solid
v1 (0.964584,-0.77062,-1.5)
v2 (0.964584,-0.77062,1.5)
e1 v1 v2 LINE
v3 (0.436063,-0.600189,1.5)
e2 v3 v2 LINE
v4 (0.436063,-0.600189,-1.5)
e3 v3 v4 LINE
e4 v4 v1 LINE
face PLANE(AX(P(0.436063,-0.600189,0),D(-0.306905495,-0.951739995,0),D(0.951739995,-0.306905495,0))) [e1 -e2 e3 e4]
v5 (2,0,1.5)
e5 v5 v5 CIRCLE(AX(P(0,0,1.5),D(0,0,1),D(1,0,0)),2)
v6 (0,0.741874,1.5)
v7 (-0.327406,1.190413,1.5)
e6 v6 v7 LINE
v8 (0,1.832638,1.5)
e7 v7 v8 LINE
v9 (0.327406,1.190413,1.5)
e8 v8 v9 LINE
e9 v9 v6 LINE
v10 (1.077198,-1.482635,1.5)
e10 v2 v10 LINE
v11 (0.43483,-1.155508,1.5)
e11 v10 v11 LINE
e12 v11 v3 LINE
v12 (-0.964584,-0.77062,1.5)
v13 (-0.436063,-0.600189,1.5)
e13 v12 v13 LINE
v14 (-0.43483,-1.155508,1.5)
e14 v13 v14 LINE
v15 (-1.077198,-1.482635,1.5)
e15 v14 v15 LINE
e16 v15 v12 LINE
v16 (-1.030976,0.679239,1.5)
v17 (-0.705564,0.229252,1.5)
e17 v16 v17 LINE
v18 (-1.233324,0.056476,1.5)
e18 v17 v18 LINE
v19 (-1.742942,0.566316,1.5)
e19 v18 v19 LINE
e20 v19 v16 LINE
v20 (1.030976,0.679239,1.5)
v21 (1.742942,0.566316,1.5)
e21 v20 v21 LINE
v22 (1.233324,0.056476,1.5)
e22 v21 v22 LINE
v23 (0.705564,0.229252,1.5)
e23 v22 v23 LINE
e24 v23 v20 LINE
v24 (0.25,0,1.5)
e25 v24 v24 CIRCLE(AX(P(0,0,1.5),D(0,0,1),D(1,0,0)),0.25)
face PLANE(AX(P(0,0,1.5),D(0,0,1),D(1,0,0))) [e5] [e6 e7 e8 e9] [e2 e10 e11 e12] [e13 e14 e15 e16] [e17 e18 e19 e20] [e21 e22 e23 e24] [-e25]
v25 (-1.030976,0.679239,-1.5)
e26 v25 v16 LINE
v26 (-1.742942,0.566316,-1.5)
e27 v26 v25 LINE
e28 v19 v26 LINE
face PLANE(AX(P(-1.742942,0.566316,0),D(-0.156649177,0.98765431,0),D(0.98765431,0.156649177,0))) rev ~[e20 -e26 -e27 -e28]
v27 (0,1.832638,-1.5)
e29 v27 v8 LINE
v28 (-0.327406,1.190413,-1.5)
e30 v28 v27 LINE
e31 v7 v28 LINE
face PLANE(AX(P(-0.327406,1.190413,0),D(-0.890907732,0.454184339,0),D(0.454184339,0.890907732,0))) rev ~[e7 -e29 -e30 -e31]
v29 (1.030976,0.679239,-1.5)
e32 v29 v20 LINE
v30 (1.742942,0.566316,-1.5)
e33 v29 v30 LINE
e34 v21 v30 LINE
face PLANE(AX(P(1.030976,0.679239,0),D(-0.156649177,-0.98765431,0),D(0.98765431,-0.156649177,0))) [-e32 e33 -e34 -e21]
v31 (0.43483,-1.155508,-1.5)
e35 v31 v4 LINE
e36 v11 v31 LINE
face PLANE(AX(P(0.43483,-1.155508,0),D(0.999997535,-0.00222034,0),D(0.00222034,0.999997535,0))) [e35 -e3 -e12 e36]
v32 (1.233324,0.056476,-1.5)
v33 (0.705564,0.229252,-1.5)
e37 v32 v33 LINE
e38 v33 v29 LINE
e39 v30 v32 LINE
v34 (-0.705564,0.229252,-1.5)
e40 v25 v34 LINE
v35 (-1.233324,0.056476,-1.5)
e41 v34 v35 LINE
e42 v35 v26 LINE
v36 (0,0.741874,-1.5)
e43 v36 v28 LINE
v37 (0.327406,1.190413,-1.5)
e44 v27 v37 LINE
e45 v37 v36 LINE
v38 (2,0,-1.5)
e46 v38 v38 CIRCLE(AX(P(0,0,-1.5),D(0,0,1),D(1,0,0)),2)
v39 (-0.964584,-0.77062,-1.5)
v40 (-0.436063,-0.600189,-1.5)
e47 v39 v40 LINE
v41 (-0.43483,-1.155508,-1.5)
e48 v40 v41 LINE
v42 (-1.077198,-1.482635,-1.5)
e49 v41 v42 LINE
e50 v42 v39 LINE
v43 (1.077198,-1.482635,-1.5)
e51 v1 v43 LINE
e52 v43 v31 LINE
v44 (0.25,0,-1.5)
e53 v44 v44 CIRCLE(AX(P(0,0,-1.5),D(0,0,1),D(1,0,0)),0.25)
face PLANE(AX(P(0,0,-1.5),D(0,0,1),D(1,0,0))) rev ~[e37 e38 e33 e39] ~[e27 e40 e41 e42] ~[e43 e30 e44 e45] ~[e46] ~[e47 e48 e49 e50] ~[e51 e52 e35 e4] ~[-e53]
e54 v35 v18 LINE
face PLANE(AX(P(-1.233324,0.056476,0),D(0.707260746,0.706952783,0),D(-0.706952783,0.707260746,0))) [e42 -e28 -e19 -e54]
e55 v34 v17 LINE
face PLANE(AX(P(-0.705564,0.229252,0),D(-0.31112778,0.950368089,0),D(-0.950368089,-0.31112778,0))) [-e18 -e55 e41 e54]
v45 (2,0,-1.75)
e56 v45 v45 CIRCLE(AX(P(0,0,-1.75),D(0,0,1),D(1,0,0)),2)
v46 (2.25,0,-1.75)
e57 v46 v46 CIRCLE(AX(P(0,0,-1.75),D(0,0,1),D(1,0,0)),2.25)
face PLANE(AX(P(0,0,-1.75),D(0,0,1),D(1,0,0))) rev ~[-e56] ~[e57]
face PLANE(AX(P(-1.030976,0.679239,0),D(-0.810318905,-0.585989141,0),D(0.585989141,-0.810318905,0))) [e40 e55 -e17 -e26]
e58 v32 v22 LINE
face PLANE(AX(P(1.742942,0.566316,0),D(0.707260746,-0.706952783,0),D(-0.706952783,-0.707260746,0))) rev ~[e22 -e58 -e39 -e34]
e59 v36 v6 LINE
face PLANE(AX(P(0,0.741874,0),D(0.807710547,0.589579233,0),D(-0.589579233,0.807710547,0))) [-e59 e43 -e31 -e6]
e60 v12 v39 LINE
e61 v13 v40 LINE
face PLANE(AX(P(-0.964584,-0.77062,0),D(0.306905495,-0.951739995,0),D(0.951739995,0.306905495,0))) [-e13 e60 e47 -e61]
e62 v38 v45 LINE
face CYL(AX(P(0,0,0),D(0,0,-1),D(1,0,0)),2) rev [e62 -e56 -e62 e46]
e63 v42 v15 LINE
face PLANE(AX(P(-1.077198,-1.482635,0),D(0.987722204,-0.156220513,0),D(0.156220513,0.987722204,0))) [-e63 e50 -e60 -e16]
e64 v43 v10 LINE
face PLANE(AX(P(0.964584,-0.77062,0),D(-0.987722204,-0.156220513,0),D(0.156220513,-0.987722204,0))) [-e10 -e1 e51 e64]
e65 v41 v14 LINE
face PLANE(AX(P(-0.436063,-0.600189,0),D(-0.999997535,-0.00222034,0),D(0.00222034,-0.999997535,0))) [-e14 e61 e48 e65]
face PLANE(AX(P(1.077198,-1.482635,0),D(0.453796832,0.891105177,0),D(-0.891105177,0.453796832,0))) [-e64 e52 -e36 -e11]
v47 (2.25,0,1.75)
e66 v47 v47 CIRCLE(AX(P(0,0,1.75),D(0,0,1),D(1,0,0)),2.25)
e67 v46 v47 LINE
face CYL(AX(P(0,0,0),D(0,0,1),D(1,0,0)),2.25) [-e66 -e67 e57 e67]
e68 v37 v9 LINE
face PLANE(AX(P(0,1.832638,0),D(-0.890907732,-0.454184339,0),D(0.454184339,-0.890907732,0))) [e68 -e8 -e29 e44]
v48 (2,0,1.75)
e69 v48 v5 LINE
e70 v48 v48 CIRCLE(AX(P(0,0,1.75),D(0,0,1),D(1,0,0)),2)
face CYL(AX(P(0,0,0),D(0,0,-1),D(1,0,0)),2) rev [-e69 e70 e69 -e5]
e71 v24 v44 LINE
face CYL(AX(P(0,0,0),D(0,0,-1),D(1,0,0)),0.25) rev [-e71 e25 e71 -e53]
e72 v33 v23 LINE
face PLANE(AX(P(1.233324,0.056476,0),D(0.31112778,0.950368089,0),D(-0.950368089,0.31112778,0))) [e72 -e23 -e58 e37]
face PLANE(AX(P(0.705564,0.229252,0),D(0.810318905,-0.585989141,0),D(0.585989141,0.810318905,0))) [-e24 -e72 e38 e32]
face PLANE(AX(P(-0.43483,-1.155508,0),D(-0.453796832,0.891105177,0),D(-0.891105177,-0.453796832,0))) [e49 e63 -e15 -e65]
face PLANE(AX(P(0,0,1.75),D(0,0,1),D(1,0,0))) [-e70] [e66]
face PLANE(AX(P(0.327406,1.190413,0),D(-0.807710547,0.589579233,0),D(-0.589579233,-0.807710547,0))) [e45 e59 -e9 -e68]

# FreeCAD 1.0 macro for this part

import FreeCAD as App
import Part
import Sketcher

doc = App.newDocument("Part")
params = doc.addObject("Spreadsheet::Sheet", "Params")
for row, (alias, value) in enumerate([
    ("sketch1_diameter", "4 mm"),
    ("sketch1_diameter2", "0.5 mm"),
    ("pad1_length", "3 mm"),
    ("sketch2_diameter", "4 mm"),
    ("sketch2_diameter2", "4.5 mm"),
    ("pad2_length", "3.5 mm"),
], start=1):
    params.set(f"A{row}", alias)
    params.set(f"B{row}", "=" + value)
    params.setAlias(f"B{row}", alias)

body = doc.addObject("PartDesign::Body", "Body")

sketch1 = doc.addObject("Sketcher::SketchObject", "Sketch")
body.addObject(sketch1)
sketch1.AttachmentSupport = (doc.XY_Plane, [""])
sketch1.MapMode = "FlatFace"
sketch1.addGeometry([
    Part.Circle(App.Vector(0, 0, 0), App.Vector(0, 0, 1), 2),
    Part.LineSegment(App.Vector(-0.44, -0.6, 0), App.Vector(-0.43, -1.16, 0)),
    Part.LineSegment(App.Vector(-0.43, -1.16, 0), App.Vector(-1.08, -1.48, 0)),
    Part.LineSegment(App.Vector(-1.08, -1.48, 0), App.Vector(-0.96, -0.77, 0)),
    Part.LineSegment(App.Vector(-0.96, -0.77, 0), App.Vector(-0.44, -0.6, 0)),
    Part.LineSegment(App.Vector(0.44, -0.6, 0), App.Vector(0.96, -0.77, 0)),
    Part.LineSegment(App.Vector(0.96, -0.77, 0), App.Vector(1.08, -1.48, 0)),
    Part.LineSegment(App.Vector(1.08, -1.48, 0), App.Vector(0.43, -1.16, 0)),
    Part.LineSegment(App.Vector(0.43, -1.16, 0), App.Vector(0.44, -0.6, 0)),
    Part.Circle(App.Vector(0, 0, 0), App.Vector(0, 0, 1), 0.25),
    Part.LineSegment(App.Vector(-0.71, 0.23, 0), App.Vector(-1.23, 0.06, 0)),
    Part.LineSegment(App.Vector(-1.23, 0.06, 0), App.Vector(-1.74, 0.57, 0)),
    Part.LineSegment(App.Vector(-1.74, 0.57, 0), App.Vector(-1.03, 0.68, 0)),
    Part.LineSegment(App.Vector(-1.03, 0.68, 0), App.Vector(-0.71, 0.23, 0)),
    Part.LineSegment(App.Vector(0, 0.74, 0), App.Vector(-0.33, 1.19, 0)),
    Part.LineSegment(App.Vector(-0.33, 1.19, 0), App.Vector(0, 1.83, 0)),
    Part.LineSegment(App.Vector(0, 1.83, 0), App.Vector(0.33, 1.19, 0)),
    Part.LineSegment(App.Vector(0.33, 1.19, 0), App.Vector(0, 0.74, 0)),
    Part.LineSegment(App.Vector(0.71, 0.23, 0), App.Vector(1.03, 0.68, 0)),
    Part.LineSegment(App.Vector(1.03, 0.68, 0), App.Vector(1.74, 0.57, 0)),
    Part.LineSegment(App.Vector(1.74, 0.57, 0), App.Vector(1.23, 0.06, 0)),
    Part.LineSegment(App.Vector(1.23, 0.06, 0), App.Vector(0.71, 0.23, 0)),
], False)
sketch1.addConstraint([
    Sketcher.Constraint("Coincident", 1, 2, 2, 1),
    Sketcher.Constraint("Coincident", 2, 2, 3, 1),
    Sketcher.Constraint("Coincident", 3, 2, 4, 1),
    Sketcher.Constraint("Coincident", 4, 2, 1, 1),
    Sketcher.Constraint("Coincident", 5, 2, 6, 1),
    Sketcher.Constraint("Coincident", 6, 2, 7, 1),
    Sketcher.Constraint("Coincident", 7, 2, 8, 1),
    Sketcher.Constraint("Coincident", 8, 2, 5, 1),
    Sketcher.Constraint("Coincident", 10, 2, 11, 1),
    Sketcher.Constraint("Coincident", 11, 2, 12, 1),
    Sketcher.Constraint("Coincident", 12, 2, 13, 1),
    Sketcher.Constraint("Coincident", 13, 2, 10, 1),
    Sketcher.Constraint("Coincident", 14, 2, 15, 1),
    Sketcher.Constraint("Coincident", 15, 2, 16, 1),
    Sketcher.Constraint("Coincident", 16, 2, 17, 1),
    Sketcher.Constraint("Coincident", 17, 2, 14, 1),
    Sketcher.Constraint("Coincident", 18, 2, 19, 1),
    Sketcher.Constraint("Coincident", 19, 2, 20, 1),
    Sketcher.Constraint("Coincident", 20, 2, 21, 1),
    Sketcher.Constraint("Coincident", 21, 2, 18, 1),
    Sketcher.Constraint("Coincident", 0, 3, -1, 1),
    Sketcher.Constraint("Coincident", 9, 3, -1, 1),
    Sketcher.Constraint("Symmetric", 3, 2, 5, 2, -2),
    Sketcher.Constraint("Symmetric", 2, 2, 6, 2, -2),
    Sketcher.Constraint("Symmetric", 1, 2, 7, 2, -2),
    Sketcher.Constraint("Symmetric", 4, 2, 8, 2, -2),
    Sketcher.Constraint("Symmetric", 14, 2, 16, 2, -2),
    Sketcher.Constraint("Symmetric", 12, 2, 18, 2, -2),
    Sketcher.Constraint("Symmetric", 11, 2, 19, 2, -2),
    Sketcher.Constraint("Symmetric", 10, 2, 20, 2, -2),
    Sketcher.Constraint("Symmetric", 13, 2, 21, 2, -2),
    Sketcher.Constraint("PointOnObject", 15, 2, -2),
    Sketcher.Constraint("PointOnObject", 17, 2, -2),
    Sketcher.Constraint("Equal", 2, 3),
    Sketcher.Constraint("Equal", 1, 4),
    Sketcher.Constraint("Equal", 8, 10),
    Sketcher.Constraint("Equal", 7, 11),
    Sketcher.Constraint("Equal", 11, 12),
    Sketcher.Constraint("Equal", 10, 13),
    Sketcher.Constraint("Equal", 13, 14),
    Sketcher.Constraint("Equal", 12, 15),
    Sketcher.Constraint("Diameter", 0, 4.0),
    Sketcher.Constraint("Diameter", 9, 0.5),
    Sketcher.Constraint("DistanceX", 2, 2, -1, 1, 1.077198),
    Sketcher.Constraint("DistanceX", 13, 2, 4, 2, 0.269501),
    Sketcher.Constraint("DistanceY", 12, 2, 15, 2, 1.153399),
    Sketcher.Constraint("Distance", 1, 0.55532),
    Sketcher.Constraint("DistanceX", 1, 2, -1, 1, 0.43483),
    Sketcher.Constraint("DistanceY", 3, 2, -1, 1, 0.77062),
    Sketcher.Constraint("DistanceY", 4, 2, -1, 1, 0.600189),
    Sketcher.Constraint("DistanceY", -1, 1, 12, 2, 0.679239),
    Sketcher.Constraint("DistanceX", 4, 2, 6, 2, 1.513261),
    Sketcher.Constraint("DistanceX", 10, 2, 3, 2, 0.26874),
    Sketcher.Constraint("DistanceY", 10, 2, 11, 2, 0.50984),
    Sketcher.Constraint("DistanceX", 12, 2, 14, 2, 0.70357),
])
sketch1.setExpression("Constraints[41]", "Params.sketch1_diameter")
sketch1.setExpression("Constraints[42]", "Params.sketch1_diameter2")
pad1 = doc.addObject("PartDesign::Pad", "Pad")
body.addObject(pad1)
pad1.Profile = sketch1
pad1.setExpression("Length", "Params.pad1_length")
pad1.Midplane = True

sketch2 = doc.addObject("Sketcher::SketchObject", "Sketch001")
body.addObject(sketch2)
sketch2.AttachmentSupport = (doc.XY_Plane, [""])
sketch2.MapMode = "FlatFace"
sketch2.addGeometry([
    Part.Circle(App.Vector(0, 0, 0), App.Vector(0, 0, 1), 2.2),
    Part.Circle(App.Vector(0, 0, 0), App.Vector(0, 0, 1), 2),
], False)
sketch2.addConstraint([
    Sketcher.Constraint("Coincident", 0, 3, -1, 1),
    Sketcher.Constraint("Coincident", 1, 3, -1, 1),
    Sketcher.Constraint("Diameter", 1, 4.0),
    Sketcher.Constraint("Diameter", 0, 4.5),
])
sketch2.setExpression("Constraints[2]", "Params.sketch2_diameter")
sketch2.setExpression("Constraints[3]", "Params.sketch2_diameter2")
pad2 = doc.addObject("PartDesign::Pad", "Pad001")
body.addObject(pad2)
pad2.Profile = sketch2
pad2.setExpression("Length", "Params.pad2_length")
pad2.Midplane = True

doc.recompute()
